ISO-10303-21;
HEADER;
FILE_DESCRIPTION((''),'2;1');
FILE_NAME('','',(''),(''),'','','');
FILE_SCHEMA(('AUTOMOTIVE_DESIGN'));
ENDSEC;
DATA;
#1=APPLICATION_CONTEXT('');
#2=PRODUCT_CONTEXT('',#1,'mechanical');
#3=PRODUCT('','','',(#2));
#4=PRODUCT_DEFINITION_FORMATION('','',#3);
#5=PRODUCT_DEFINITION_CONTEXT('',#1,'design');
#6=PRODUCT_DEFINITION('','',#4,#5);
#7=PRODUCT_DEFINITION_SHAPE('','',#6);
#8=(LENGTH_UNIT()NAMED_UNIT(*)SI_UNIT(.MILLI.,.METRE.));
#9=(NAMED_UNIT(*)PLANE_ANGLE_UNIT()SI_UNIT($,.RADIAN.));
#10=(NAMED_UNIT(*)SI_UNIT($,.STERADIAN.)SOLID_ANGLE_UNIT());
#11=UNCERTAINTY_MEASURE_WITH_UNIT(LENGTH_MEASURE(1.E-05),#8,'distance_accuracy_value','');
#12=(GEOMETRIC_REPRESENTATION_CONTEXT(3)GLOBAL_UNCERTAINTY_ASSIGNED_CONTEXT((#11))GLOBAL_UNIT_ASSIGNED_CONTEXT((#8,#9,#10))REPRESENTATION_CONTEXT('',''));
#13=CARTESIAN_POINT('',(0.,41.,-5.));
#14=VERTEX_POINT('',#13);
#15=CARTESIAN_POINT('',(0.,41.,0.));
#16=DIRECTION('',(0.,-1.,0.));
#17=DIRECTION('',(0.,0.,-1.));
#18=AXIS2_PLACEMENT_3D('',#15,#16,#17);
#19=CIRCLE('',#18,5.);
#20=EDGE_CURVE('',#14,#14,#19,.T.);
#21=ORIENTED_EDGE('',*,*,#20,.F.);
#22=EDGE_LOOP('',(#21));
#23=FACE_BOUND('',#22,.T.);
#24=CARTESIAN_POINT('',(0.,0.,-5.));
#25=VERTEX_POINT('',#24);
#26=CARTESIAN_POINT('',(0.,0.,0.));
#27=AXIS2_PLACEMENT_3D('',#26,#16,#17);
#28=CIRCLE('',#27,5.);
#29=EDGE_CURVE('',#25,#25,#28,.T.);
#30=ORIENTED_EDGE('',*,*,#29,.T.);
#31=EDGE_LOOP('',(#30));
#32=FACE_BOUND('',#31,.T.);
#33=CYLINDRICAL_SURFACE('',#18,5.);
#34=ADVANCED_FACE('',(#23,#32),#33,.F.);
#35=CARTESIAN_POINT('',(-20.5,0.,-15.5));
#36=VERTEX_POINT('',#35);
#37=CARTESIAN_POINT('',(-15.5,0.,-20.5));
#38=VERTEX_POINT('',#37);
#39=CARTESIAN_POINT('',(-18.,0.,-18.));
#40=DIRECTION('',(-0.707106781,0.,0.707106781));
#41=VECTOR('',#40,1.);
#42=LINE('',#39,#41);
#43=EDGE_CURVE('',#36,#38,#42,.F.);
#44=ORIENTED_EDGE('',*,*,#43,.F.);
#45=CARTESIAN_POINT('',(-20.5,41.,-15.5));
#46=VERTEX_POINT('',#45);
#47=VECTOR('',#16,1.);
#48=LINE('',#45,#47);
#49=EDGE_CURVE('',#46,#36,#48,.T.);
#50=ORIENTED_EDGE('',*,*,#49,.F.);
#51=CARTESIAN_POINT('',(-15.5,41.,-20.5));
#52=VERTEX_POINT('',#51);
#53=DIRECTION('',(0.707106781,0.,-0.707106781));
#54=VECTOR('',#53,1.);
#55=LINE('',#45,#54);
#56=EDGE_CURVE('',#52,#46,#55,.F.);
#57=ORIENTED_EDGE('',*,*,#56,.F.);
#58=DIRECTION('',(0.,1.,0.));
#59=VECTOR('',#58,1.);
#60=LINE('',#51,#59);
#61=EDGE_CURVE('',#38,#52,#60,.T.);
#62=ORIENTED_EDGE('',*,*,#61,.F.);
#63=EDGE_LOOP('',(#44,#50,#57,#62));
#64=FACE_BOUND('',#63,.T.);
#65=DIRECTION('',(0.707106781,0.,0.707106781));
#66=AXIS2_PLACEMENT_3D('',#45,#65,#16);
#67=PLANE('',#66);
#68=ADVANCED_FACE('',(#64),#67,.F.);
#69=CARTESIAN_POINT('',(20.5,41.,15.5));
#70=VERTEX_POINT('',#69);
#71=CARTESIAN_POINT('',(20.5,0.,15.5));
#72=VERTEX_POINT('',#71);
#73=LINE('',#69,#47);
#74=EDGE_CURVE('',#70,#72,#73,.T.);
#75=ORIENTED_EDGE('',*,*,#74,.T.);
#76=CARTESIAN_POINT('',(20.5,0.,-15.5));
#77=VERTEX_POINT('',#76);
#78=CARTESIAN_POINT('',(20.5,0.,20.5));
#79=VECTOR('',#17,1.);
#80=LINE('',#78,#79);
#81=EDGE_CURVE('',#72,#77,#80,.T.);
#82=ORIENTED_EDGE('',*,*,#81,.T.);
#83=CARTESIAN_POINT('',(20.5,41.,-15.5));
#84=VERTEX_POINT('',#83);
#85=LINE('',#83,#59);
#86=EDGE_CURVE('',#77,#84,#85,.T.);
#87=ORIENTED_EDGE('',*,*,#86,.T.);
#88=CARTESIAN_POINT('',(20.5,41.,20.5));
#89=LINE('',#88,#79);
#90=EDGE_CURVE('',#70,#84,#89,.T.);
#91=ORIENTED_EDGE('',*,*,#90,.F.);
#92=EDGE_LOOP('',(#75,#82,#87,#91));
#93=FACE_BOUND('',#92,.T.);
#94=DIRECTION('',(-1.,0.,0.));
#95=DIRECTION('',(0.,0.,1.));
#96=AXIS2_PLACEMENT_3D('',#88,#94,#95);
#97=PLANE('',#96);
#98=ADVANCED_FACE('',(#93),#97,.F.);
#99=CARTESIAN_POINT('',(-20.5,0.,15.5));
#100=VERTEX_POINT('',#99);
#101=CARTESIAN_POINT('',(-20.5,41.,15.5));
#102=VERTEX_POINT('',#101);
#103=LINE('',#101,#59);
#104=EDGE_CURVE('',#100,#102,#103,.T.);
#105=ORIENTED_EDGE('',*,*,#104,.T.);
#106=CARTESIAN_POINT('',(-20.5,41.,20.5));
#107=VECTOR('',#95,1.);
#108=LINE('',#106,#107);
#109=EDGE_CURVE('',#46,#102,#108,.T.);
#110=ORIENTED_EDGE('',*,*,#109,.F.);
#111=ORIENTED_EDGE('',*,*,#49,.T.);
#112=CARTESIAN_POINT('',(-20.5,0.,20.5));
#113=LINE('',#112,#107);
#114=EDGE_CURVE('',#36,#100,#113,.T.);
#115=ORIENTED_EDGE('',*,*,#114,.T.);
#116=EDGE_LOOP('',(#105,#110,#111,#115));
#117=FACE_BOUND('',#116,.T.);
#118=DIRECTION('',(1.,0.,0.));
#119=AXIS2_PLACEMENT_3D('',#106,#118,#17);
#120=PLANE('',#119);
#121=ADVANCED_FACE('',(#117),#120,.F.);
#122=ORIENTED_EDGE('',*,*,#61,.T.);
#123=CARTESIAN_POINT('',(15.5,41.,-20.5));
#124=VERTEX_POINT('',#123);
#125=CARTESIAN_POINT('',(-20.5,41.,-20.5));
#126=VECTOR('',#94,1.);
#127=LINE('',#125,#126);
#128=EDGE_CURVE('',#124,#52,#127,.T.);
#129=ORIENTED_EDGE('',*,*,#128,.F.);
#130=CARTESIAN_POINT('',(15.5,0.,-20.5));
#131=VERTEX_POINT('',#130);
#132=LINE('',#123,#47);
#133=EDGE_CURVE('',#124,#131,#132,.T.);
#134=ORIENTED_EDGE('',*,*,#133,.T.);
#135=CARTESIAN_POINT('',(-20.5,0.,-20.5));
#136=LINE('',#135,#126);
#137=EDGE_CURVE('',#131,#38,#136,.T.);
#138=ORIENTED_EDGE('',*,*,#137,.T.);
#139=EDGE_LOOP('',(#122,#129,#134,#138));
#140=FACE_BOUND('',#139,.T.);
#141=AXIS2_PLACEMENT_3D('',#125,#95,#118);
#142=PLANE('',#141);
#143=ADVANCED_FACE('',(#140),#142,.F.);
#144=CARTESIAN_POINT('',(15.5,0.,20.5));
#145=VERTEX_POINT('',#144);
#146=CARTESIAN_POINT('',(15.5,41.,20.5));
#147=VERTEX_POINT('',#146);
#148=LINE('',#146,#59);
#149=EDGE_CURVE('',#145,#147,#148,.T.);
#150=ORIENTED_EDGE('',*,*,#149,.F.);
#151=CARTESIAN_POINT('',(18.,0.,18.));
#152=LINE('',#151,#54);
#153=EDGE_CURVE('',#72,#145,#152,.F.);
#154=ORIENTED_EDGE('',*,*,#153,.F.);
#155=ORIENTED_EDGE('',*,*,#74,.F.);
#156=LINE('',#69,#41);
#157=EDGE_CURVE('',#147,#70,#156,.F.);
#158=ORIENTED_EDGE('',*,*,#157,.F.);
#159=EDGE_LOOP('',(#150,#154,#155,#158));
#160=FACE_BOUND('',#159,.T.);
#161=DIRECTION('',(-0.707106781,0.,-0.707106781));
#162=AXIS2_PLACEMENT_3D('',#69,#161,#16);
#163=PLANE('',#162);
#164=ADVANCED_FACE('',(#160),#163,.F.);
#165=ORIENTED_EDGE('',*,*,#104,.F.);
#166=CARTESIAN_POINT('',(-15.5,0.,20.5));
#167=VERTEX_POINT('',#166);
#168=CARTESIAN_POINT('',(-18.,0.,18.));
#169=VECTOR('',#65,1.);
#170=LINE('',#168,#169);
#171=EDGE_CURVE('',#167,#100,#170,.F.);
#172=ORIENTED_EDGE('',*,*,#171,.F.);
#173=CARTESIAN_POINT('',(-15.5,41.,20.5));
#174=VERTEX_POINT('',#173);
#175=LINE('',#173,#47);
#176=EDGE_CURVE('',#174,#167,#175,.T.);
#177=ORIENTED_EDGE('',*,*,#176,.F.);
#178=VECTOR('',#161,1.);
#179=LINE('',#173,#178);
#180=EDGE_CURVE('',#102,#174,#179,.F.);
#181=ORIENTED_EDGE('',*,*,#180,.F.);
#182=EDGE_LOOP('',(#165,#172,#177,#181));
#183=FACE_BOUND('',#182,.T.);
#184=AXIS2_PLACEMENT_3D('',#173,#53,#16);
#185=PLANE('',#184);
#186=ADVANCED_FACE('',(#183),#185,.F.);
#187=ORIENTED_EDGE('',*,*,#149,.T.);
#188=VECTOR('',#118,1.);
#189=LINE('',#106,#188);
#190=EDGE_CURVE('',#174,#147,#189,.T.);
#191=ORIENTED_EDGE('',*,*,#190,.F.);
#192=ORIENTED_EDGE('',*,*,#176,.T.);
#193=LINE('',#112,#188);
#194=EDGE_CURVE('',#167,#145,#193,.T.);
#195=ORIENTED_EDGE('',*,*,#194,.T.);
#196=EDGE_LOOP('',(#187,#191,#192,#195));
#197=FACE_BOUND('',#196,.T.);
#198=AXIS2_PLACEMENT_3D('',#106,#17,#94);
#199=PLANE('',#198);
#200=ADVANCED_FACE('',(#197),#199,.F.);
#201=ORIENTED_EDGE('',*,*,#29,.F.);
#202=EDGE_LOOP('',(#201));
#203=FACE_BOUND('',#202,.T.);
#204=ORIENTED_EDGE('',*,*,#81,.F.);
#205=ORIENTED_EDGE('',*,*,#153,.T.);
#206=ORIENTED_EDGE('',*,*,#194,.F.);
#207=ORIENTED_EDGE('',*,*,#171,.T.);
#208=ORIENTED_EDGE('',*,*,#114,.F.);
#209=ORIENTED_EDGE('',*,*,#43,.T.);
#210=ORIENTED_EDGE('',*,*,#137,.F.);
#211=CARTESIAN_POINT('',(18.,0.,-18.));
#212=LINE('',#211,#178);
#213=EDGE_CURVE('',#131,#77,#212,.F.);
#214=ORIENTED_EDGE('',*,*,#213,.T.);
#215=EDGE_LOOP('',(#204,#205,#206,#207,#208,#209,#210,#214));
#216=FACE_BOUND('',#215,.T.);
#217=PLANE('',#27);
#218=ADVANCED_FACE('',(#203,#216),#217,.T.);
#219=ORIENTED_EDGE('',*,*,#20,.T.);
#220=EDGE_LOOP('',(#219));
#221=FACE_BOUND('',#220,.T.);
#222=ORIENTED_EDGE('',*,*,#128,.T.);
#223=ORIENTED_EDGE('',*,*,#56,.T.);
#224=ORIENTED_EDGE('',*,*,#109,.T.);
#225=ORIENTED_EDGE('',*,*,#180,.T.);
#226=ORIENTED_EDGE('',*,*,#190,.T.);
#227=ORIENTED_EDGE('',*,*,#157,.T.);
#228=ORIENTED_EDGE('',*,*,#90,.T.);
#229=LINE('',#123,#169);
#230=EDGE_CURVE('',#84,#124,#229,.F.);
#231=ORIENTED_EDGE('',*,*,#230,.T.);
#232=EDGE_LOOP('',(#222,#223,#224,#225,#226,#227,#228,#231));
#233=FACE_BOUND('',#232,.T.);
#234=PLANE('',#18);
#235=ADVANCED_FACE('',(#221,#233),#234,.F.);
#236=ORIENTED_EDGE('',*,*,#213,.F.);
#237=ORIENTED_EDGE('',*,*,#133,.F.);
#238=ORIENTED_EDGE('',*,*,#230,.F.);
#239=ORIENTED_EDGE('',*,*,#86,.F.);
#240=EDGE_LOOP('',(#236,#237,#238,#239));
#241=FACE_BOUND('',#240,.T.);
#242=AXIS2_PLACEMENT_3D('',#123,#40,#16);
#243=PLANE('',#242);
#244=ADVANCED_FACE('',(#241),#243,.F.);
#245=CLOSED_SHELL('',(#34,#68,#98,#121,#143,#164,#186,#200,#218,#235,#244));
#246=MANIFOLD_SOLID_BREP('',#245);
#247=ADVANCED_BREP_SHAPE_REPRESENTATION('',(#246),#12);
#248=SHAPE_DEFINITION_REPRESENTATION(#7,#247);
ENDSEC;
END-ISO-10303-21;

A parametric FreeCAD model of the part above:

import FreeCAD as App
import Part
import Sketcher

V = App.Vector
Q = App.Units.Quantity


def edges_at(feature, points):
    """Names of the edges that pass closest to the given points."""
    edges = feature.Shape.Edges
    near = lambda p: min(range(len(edges)), key=lambda i: edges[i].distToShape(Part.Vertex(*p))[0])
    return sorted({f"Edge{near(p) + 1}" for p in points})

doc = App.newDocument("Part")
body = doc.addObject("PartDesign::Body", "Body")

# Sketch on XZ plane
sketch1 = body.newObject("Sketcher::SketchObject", "Sketch")
sketch1.AttachmentSupport = (doc.getObject("XZ_Plane"), [""])
sketch1.MapMode = "FlatFace"
sketch1.addGeometry(Part.LineSegment(V(-20, -20, 0), V(-20, 20, 0)), False)
sketch1.addGeometry(Part.LineSegment(V(-20, 20, 0), V(20, 20, 0)), False)
sketch1.addGeometry(Part.LineSegment(V(20, 20, 0), V(20, -20, 0)), False)
sketch1.addGeometry(Part.LineSegment(V(20, -20, 0), V(-20, -20, 0)), False)
sketch1.addConstraint(Sketcher.Constraint("Coincident", 0, 2, 1, 1))
sketch1.addConstraint(Sketcher.Constraint("Coincident", 1, 2, 2, 1))
sketch1.addConstraint(Sketcher.Constraint("Coincident", 2, 2, 3, 1))
sketch1.addConstraint(Sketcher.Constraint("Coincident", 3, 2, 0, 1))
sketch1.addConstraint(Sketcher.Constraint("Vertical", 0))
sketch1.addConstraint(Sketcher.Constraint("Horizontal", 1))
sketch1.addConstraint(Sketcher.Constraint("Vertical", 2))
sketch1.addConstraint(Sketcher.Constraint("Horizontal", 3))
sketch1.addConstraint(Sketcher.Constraint("Symmetric", 0, 2, 2, 2, -1, 1))
sketch1.addConstraint(Sketcher.Constraint("Equal", 3, 0))
sketch1.addConstraint(Sketcher.Constraint("DistanceX", 1, 1, 1, 2, Q("41 mm")))
pad1 = body.newObject("PartDesign::Pad", "Pad")
pad1.Profile = sketch1
pad1.Length = 41
pad1.Reversed = True
doc.recompute()

chamfer = body.newObject("PartDesign::Chamfer", "Chamfer")
chamfer.Base = (pad1, edges_at(pad1, [
    (20.5, 20.5, 20.5),
    (-20.5, 20.5, 20.5),
    (-20.5, 20.5, -20.5),
    (20.5, 20.5, -20.5),
]))
chamfer.Size = 5

# Sketch on XZ plane
sketch2 = body.newObject("Sketcher::SketchObject", "Sketch001")
sketch2.AttachmentSupport = (doc.getObject("XZ_Plane"), [""])
sketch2.MapMode = "FlatFace"
sketch2.addGeometry(Part.Circle(V(0, 0, 0), V(0, 0, 1), 5), False)
sketch2.addConstraint(Sketcher.Constraint("Coincident", 0, 3, -1, 1))
sketch2.addConstraint(Sketcher.Constraint("Diameter", 0, Q("10 mm")))
pocket1 = body.newObject("PartDesign::Pocket", "Pocket")
pocket1.Profile = sketch2
pocket1.Type = "ThroughAll"

doc.recompute()
